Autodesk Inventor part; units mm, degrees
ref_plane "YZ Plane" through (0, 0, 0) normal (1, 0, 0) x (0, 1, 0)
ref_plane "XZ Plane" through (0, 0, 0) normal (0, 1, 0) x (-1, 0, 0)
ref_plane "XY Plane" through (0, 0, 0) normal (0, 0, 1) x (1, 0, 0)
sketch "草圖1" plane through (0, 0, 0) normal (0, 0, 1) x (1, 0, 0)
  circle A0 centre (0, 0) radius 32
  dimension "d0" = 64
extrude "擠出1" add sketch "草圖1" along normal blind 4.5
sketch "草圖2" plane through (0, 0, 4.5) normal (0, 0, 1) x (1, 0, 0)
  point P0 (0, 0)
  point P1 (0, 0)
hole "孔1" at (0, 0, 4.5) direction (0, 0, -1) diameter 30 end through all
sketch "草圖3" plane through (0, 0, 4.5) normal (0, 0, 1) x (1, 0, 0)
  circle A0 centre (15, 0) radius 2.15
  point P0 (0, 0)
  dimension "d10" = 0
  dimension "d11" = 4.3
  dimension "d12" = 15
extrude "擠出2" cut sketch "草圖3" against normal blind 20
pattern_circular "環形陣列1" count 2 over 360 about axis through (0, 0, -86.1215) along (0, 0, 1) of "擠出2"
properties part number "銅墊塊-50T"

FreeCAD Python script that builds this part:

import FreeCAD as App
import Part
import Sketcher
from FreeCAD import Vector

doc = App.newDocument("Part")
body = doc.addObject("PartDesign::Body", "Body")

# Sketch on XY plane
sketch1 = body.newObject("Sketcher::SketchObject", "Sketch")
sketch1.AttachmentSupport = (doc.getObject("XY_Plane"), [""])
sketch1.MapMode = "FlatFace"
sketch1.addGeometry(Part.Circle(Vector(0, 0, 0), Vector(0, 0, 1), 32), False)
sketch1.addConstraint([
    Sketcher.Constraint("Coincident", 0, 3, -1, 1),
    Sketcher.Constraint("Diameter", 0, 64.0),
])
pad1 = body.newObject("PartDesign::Pad", "Pad")
pad1.Profile = sketch1
pad1.Length = 4.5

# Sketch on XY plane
sketch2 = body.newObject("Sketcher::SketchObject", "Sketch001")
sketch2.AttachmentSupport = (doc.getObject("XY_Plane"), [""])
sketch2.MapMode = "FlatFace"
sketch2.AttachmentOffset = App.Placement(Vector(0, 0, 4.5), App.Rotation())
sketch2.addGeometry(Part.Circle(Vector(0, 0, 0), Vector(0, 0, 1), 15), False)
sketch2.addConstraint([
    Sketcher.Constraint("Coincident", 0, 3, -1, 1),
    Sketcher.Constraint("Diameter", 0, 30.0),
])
doc.recompute()
hole = body.newObject("PartDesign::Hole", "Hole")
hole.Profile = sketch2
hole.ThreadType = "None"
hole.Diameter = 30
hole.DepthType = "ThroughAll"

# Sketch on XY plane
sketch3 = body.newObject("Sketcher::SketchObject", "Sketch002")
sketch3.AttachmentSupport = (doc.getObject("XY_Plane"), [""])
sketch3.MapMode = "FlatFace"
sketch3.AttachmentOffset = App.Placement(Vector(0, 0, 4.5), App.Rotation())
sketch3.addGeometry(Part.Circle(Vector(15, 0, 0), Vector(0, 0, 1), 2.15), False)
sketch3.addConstraint([
    Sketcher.Constraint("PointOnObject", 0, 3, -1),
    Sketcher.Constraint("Diameter", 0, 4.3),
    Sketcher.Constraint("DistanceX", -1, 1, 0, 3, 15.0),
])
pocket1 = body.newObject("PartDesign::Pocket", "Pocket")
pocket1.Profile = sketch3
pocket1.Length = 20
doc.recompute()

polarpattern = body.newObject("PartDesign::PolarPattern", "PolarPattern")
polarpattern.Originals = [pocket1]
polarpattern.Axis = (doc.getObject("Z_Axis"), [""])
polarpattern.Angle = 360
polarpattern.Occurrences = 2
body.Tip = polarpattern

doc.recompute()
